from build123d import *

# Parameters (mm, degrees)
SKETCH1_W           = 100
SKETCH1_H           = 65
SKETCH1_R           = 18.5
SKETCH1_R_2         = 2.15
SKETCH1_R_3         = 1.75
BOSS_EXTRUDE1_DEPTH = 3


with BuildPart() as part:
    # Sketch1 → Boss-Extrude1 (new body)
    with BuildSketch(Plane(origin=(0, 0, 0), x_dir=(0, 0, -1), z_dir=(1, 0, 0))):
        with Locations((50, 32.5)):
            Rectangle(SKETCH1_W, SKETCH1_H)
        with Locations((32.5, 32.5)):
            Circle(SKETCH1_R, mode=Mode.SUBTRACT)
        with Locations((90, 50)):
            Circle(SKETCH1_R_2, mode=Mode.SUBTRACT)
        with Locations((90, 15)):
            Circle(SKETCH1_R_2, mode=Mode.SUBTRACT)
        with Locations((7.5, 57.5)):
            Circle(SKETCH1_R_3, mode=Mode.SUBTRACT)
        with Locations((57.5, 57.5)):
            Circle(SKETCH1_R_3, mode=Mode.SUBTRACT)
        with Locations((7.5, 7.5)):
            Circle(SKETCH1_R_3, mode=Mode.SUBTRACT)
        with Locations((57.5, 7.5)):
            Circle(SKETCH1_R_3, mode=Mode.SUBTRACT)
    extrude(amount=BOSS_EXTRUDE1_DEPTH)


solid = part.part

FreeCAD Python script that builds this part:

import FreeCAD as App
import Part
import Sketcher
from FreeCAD import Vector
Q = App.Units.Quantity


def add_polygon(sketch, points):
    """Adds a closed chain of lines whose ends are joined by coincident constraints."""
    first, n = sketch.GeometryCount, len(points)
    for a, b in zip(points, points[1:] + points[:1]):
        sketch.addGeometry(Part.LineSegment(App.Vector(*a, 0), App.Vector(*b, 0)), False)
    for i in range(n):
        sketch.addConstraint(Sketcher.Constraint("Coincident", first + i, 2, first + (i + 1) % n, 1))

doc = App.newDocument("Part")
body = doc.addObject("PartDesign::Body", "Body")

sketch1 = doc.addObject("Sketcher::SketchObject", "Sketch")
body.addObject(sketch1)
sketch1.AttachmentSupport = (doc.YZ_Plane, [""])
sketch1.MapMode = "FlatFace"
add_polygon(sketch1, [(65, 0), (0, 0), (0, -100), (65, -100)])
sketch1.addGeometry(Part.Circle(Vector(7.5, -7.5, 0), Vector(0, 0, 1), 1.8), False)
sketch1.addGeometry(Part.Circle(Vector(32.5, -32.5, 0), Vector(0, 0, 1), 18.5), False)
sketch1.addGeometry(Part.Circle(Vector(7.5, -57.5, 0), Vector(0, 0, 1), 1.8), False)
sketch1.addGeometry(Part.Circle(Vector(15, -90, 0), Vector(0, 0, 1), 2.1), False)
sketch1.addGeometry(Part.Circle(Vector(57.5, -7.5, 0), Vector(0, 0, 1), 1.8), False)
sketch1.addGeometry(Part.Circle(Vector(57.5, -57.5, 0), Vector(0, 0, 1), 1.8), False)
sketch1.addGeometry(Part.Circle(Vector(50, -90, 0), Vector(0, 0, 1), 2.1), False)
sketch1.addConstraint([
    Sketcher.Constraint("Horizontal", 0),
    Sketcher.Constraint("Vertical", 1),
    Sketcher.Constraint("Horizontal", 2),
    Sketcher.Constraint("Vertical", 3),
    Sketcher.Constraint("Coincident", 0, 2, -1, 1),
    Sketcher.Constraint("Equal", 4, 6),
    Sketcher.Constraint("Equal", 6, 8),
    Sketcher.Constraint("Equal", 8, 9),
    Sketcher.Constraint("Equal", 7, 10),
    Sketcher.Constraint("Horizontal", 4, 3, 8, 3),
    Sketcher.Constraint("Horizontal", 6, 3, 9, 3),
    Sketcher.Constraint("Horizontal", 7, 3, 10, 3),
    Sketcher.Constraint("Vertical", 4, 3, 6, 3),
    Sketcher.Constraint("Vertical", 8, 3, 9, 3),
    Sketcher.Constraint("Diameter", 5, Q("37 mm")),
    Sketcher.Constraint("Diameter", 4, Q("3.5 mm")),
    Sketcher.Constraint("Diameter", 7, Q("4.3 mm")),
    Sketcher.Constraint("DistanceX", 0, 2, 0, 1, Q("65 mm")),
    Sketcher.Constraint("DistanceY", 1, 2, 1, 1, Q("100 mm")),
    Sketcher.Constraint("DistanceX", -1, 1, 7, 3, Q("15 mm")),
    Sketcher.Constraint("DistanceY", 7, 3, -1, 1, Q("90 mm")),
    Sketcher.Constraint("DistanceX", -1, 1, 10, 3, Q("50 mm")),
    Sketcher.Constraint("DistanceX", 4, 3, 5, 3, Q("25 mm")),
    Sketcher.Constraint("DistanceY", 5, 3, 4, 3, Q("25 mm")),
    Sketcher.Constraint("DistanceY", 6, 3, 5, 3, Q("25 mm")),
    Sketcher.Constraint("DistanceX", 5, 3, 8, 3, Q("25 mm")),
    Sketcher.Constraint("DistanceX", -1, 1, 4, 3, Q("7.5 mm")),
    Sketcher.Constraint("DistanceY", 4, 3, -1, 1, Q("7.5 mm")),
])
pad1 = doc.addObject("PartDesign::Pad", "Pad")
body.addObject(pad1)
pad1.Profile = sketch1
pad1.Length = 3

doc.recompute()
